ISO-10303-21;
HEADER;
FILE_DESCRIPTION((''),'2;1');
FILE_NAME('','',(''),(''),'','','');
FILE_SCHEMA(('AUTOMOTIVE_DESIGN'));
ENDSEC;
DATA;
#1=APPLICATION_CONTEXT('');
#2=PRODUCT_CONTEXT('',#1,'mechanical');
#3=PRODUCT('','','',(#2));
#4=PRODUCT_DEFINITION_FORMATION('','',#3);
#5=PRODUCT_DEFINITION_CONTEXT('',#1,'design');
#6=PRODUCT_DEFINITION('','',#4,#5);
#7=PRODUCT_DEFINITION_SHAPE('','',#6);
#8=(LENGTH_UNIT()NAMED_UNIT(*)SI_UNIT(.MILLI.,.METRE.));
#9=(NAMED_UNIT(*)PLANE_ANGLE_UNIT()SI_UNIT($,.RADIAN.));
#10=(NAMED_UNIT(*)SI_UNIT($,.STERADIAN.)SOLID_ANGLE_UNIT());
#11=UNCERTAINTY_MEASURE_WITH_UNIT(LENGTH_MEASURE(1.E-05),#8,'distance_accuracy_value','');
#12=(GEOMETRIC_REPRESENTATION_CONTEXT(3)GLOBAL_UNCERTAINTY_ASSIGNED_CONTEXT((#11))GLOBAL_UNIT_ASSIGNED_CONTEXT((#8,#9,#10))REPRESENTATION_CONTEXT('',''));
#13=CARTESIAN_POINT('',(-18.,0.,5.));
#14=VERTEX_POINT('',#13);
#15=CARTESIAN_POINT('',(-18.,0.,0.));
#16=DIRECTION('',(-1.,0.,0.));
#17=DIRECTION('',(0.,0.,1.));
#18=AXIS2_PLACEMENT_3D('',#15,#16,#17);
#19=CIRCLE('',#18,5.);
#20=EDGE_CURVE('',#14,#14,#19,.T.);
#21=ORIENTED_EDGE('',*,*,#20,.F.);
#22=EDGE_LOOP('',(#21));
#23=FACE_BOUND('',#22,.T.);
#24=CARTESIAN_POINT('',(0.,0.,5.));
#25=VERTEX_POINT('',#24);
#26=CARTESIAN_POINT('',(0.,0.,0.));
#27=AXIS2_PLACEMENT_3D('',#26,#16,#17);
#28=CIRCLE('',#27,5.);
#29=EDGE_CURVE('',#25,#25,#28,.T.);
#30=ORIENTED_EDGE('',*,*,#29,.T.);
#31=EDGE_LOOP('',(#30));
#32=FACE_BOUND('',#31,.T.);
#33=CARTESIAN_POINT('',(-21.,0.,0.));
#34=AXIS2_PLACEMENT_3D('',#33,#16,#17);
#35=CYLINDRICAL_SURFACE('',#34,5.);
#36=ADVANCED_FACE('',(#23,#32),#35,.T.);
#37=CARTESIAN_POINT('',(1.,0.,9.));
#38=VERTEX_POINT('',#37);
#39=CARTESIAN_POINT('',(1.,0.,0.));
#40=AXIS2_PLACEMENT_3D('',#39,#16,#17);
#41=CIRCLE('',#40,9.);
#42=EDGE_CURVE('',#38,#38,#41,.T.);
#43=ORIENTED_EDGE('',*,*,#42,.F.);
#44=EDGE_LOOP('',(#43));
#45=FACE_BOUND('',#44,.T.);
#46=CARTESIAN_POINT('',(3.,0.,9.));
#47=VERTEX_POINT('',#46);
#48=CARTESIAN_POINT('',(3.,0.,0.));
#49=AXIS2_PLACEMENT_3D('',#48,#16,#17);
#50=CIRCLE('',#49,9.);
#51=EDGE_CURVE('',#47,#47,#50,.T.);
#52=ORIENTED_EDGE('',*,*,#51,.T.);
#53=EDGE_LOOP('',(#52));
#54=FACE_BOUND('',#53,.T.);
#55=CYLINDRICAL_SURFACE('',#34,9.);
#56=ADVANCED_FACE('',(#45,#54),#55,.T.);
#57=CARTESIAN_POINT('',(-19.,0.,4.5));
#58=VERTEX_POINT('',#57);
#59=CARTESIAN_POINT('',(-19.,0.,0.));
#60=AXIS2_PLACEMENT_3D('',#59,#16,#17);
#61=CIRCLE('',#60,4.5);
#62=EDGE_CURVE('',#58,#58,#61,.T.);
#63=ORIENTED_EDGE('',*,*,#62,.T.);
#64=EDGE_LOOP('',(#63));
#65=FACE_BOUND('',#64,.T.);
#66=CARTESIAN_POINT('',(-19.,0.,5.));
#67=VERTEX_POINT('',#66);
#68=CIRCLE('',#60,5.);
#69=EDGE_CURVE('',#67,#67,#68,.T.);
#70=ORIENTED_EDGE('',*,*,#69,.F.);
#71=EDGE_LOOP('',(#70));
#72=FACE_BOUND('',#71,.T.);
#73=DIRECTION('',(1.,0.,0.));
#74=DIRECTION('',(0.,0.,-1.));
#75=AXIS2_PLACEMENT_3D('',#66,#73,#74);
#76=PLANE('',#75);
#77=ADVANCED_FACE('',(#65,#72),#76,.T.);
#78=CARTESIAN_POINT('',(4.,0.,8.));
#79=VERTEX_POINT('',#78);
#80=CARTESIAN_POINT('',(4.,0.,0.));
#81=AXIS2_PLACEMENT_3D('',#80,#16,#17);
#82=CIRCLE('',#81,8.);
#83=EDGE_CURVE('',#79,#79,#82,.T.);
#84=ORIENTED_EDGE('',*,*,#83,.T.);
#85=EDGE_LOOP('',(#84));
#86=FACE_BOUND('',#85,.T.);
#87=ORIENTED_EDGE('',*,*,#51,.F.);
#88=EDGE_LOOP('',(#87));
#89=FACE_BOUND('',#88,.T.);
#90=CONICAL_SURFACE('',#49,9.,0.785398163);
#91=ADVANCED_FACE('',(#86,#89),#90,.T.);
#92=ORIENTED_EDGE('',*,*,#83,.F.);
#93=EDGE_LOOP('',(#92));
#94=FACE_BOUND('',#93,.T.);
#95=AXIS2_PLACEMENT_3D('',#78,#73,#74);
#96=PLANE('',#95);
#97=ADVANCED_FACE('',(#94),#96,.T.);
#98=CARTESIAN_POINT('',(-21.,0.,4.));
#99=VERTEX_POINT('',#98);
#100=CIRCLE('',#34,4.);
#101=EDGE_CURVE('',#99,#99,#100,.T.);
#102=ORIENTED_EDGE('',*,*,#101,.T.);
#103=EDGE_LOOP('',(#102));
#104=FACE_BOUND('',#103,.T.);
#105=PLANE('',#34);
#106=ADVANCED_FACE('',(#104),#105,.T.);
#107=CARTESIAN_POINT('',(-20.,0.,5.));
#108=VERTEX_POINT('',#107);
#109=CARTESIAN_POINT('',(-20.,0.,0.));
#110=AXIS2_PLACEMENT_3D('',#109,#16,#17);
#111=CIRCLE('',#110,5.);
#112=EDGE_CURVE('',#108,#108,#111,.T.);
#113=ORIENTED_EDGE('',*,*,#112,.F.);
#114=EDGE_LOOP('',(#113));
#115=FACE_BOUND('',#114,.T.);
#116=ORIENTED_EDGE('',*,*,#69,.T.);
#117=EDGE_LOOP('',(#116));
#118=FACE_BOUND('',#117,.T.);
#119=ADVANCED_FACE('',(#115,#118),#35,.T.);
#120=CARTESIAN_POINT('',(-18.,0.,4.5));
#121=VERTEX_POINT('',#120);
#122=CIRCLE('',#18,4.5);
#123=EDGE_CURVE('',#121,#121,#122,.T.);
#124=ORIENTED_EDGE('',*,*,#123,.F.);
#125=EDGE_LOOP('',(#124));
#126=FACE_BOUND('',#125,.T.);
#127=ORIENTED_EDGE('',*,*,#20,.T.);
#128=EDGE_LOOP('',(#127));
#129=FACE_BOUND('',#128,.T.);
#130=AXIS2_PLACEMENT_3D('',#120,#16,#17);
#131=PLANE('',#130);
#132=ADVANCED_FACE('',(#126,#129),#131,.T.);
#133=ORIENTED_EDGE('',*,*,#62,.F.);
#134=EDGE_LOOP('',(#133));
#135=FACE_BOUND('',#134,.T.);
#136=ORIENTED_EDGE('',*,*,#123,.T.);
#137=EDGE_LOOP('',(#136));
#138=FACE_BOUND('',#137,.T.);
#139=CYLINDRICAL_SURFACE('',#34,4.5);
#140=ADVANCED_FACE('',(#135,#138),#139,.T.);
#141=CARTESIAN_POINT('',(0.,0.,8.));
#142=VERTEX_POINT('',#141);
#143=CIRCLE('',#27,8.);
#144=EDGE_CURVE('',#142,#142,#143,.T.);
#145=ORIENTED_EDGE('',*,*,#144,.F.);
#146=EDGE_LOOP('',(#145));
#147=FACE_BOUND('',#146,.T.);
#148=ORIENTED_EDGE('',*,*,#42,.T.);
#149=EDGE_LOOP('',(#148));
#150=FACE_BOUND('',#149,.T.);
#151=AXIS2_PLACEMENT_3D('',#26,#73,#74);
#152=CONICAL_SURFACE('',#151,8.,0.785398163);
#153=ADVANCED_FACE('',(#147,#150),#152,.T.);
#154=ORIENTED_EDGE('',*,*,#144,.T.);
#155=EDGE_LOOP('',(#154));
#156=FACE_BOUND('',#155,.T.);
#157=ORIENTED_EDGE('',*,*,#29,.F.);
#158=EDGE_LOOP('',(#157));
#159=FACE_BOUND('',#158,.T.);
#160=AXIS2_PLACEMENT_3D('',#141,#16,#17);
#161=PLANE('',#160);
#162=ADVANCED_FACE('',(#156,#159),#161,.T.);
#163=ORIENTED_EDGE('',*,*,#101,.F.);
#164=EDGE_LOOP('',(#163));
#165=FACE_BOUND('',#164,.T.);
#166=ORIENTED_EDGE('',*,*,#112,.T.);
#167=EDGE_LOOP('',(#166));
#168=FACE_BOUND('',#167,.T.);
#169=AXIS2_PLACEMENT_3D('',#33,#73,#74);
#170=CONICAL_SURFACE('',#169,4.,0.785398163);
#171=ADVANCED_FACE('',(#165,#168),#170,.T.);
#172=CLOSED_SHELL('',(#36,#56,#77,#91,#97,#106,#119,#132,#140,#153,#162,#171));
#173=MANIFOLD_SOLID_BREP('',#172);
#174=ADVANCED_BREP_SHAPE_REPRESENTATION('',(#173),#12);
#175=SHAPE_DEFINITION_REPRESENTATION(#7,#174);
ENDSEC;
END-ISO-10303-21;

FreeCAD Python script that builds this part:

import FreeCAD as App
import Part
import Sketcher

doc = App.newDocument("Part")
body = doc.addObject("PartDesign::Body", "Body")

sketch1 = body.newObject("Sketcher::SketchObject", "Sketch")
sketch1.AttachmentSupport = (doc.getObject("XZ_Plane"), [""])
sketch1.MapMode = "FlatFace"
sketch1.addGeometry(Part.LineSegment(App.Vector(1, 9, 0), App.Vector(3, 9, 0)), False)
sketch1.addGeometry(Part.LineSegment(App.Vector(3, 9, 0), App.Vector(4, 8, 0)), False)
sketch1.addGeometry(Part.LineSegment(App.Vector(4, 8, 0), App.Vector(4, 0, 0)), False)
sketch1.addGeometry(Part.LineSegment(App.Vector(4, 0, 0), App.Vector(-21, 0, 0)), False)
sketch1.addGeometry(Part.LineSegment(App.Vector(-21, 0, 0), App.Vector(-21, 4, 0)), False)
sketch1.addGeometry(Part.LineSegment(App.Vector(-21, 4, 0), App.Vector(-20, 5, 0)), False)
sketch1.addGeometry(Part.LineSegment(App.Vector(-20, 5, 0), App.Vector(-19, 5, 0)), False)
sketch1.addGeometry(Part.LineSegment(App.Vector(-19, 5, 0), App.Vector(-19, 4.5, 0)), False)
sketch1.addGeometry(Part.LineSegment(App.Vector(-19, 4.5, 0), App.Vector(-18, 4.5, 0)), False)
sketch1.addGeometry(Part.LineSegment(App.Vector(-18, 4.5, 0), App.Vector(-18, 5, 0)), False)
sketch1.addGeometry(Part.LineSegment(App.Vector(-18, 5, 0), App.Vector(0, 5, 0)), False)
sketch1.addGeometry(Part.LineSegment(App.Vector(0, 5, 0), App.Vector(0, 8, 0)), False)
sketch1.addGeometry(Part.LineSegment(App.Vector(0, 8, 0), App.Vector(1, 9, 0)), False)
sketch1.addConstraint(Sketcher.Constraint("Coincident", 0, 2, 1, 1))
sketch1.addConstraint(Sketcher.Constraint("Coincident", 1, 2, 2, 1))
sketch1.addConstraint(Sketcher.Constraint("Coincident", 2, 2, 3, 1))
sketch1.addConstraint(Sketcher.Constraint("Coincident", 3, 2, 4, 1))
sketch1.addConstraint(Sketcher.Constraint("Coincident", 4, 2, 5, 1))
sketch1.addConstraint(Sketcher.Constraint("Coincident", 5, 2, 6, 1))
sketch1.addConstraint(Sketcher.Constraint("Coincident", 6, 2, 7, 1))
sketch1.addConstraint(Sketcher.Constraint("Coincident", 7, 2, 8, 1))
sketch1.addConstraint(Sketcher.Constraint("Coincident", 8, 2, 9, 1))
sketch1.addConstraint(Sketcher.Constraint("Coincident", 9, 2, 10, 1))
sketch1.addConstraint(Sketcher.Constraint("Coincident", 10, 2, 11, 1))
sketch1.addConstraint(Sketcher.Constraint("Coincident", 11, 2, 12, 1))
sketch1.addConstraint(Sketcher.Constraint("Coincident", 12, 2, 0, 1))
sketch1.addConstraint(Sketcher.Constraint("Horizontal", 0))
sketch1.addConstraint(Sketcher.Constraint("Vertical", 2))
sketch1.addConstraint(Sketcher.Constraint("Horizontal", 3))
sketch1.addConstraint(Sketcher.Constraint("Vertical", 4))
sketch1.addConstraint(Sketcher.Constraint("Horizontal", 6))
sketch1.addConstraint(Sketcher.Constraint("Vertical", 7))
sketch1.addConstraint(Sketcher.Constraint("Horizontal", 8))
sketch1.addConstraint(Sketcher.Constraint("Vertical", 9))
sketch1.addConstraint(Sketcher.Constraint("Horizontal", 10))
sketch1.addConstraint(Sketcher.Constraint("Vertical", 11))
sketch1.addConstraint(Sketcher.Constraint("PointOnObject", 2, 2, -1))
sketch1.addConstraint(Sketcher.Constraint("PointOnObject", 10, 2, -2))
sketch1.addConstraint(Sketcher.Constraint("Perpendicular", 1, 5))
sketch1.addConstraint(Sketcher.Constraint("Parallel", 5, 12))
sketch1.addConstraint(Sketcher.Constraint("Horizontal", 6, 2, 9, 2))
sketch1.addConstraint(Sketcher.Constraint("Horizontal", 1, 2, 11, 2))
sketch1.addConstraint(Sketcher.Constraint("Equal", 6, 8))
sketch1.addConstraint(Sketcher.Constraint("Equal", 1, 5))
sketch1.addConstraint(Sketcher.Constraint("Equal", 5, 12))
sketch1.addConstraint(Sketcher.Constraint("DistanceX", 0, 1, 0, 2, 2.0))
sketch1.addConstraint(Sketcher.Constraint("DistanceX", 3, 2, 3, 1, 25.0))
sketch1.addConstraint(Sketcher.Constraint("DistanceX", 6, 1, 6, 2, 1.0))
sketch1.addConstraint(Sketcher.Constraint("DistanceX", 10, 1, 10, 2, 18.0))
sketch1.addConstraint(Sketcher.Constraint("DistanceY", 2, 2, 2, 1, 8.0))
sketch1.addConstraint(Sketcher.Constraint("DistanceY", 4, 1, 4, 2, 4.0))
sketch1.addConstraint(Sketcher.Constraint("DistanceY", 7, 2, 7, 1, 0.5))
revolution = body.newObject("PartDesign::Revolution", "Revolution")
revolution.Profile = sketch1
revolution.ReferenceAxis = (sketch1, ["H_Axis"])
revolution.Angle = 360

doc.recompute()
